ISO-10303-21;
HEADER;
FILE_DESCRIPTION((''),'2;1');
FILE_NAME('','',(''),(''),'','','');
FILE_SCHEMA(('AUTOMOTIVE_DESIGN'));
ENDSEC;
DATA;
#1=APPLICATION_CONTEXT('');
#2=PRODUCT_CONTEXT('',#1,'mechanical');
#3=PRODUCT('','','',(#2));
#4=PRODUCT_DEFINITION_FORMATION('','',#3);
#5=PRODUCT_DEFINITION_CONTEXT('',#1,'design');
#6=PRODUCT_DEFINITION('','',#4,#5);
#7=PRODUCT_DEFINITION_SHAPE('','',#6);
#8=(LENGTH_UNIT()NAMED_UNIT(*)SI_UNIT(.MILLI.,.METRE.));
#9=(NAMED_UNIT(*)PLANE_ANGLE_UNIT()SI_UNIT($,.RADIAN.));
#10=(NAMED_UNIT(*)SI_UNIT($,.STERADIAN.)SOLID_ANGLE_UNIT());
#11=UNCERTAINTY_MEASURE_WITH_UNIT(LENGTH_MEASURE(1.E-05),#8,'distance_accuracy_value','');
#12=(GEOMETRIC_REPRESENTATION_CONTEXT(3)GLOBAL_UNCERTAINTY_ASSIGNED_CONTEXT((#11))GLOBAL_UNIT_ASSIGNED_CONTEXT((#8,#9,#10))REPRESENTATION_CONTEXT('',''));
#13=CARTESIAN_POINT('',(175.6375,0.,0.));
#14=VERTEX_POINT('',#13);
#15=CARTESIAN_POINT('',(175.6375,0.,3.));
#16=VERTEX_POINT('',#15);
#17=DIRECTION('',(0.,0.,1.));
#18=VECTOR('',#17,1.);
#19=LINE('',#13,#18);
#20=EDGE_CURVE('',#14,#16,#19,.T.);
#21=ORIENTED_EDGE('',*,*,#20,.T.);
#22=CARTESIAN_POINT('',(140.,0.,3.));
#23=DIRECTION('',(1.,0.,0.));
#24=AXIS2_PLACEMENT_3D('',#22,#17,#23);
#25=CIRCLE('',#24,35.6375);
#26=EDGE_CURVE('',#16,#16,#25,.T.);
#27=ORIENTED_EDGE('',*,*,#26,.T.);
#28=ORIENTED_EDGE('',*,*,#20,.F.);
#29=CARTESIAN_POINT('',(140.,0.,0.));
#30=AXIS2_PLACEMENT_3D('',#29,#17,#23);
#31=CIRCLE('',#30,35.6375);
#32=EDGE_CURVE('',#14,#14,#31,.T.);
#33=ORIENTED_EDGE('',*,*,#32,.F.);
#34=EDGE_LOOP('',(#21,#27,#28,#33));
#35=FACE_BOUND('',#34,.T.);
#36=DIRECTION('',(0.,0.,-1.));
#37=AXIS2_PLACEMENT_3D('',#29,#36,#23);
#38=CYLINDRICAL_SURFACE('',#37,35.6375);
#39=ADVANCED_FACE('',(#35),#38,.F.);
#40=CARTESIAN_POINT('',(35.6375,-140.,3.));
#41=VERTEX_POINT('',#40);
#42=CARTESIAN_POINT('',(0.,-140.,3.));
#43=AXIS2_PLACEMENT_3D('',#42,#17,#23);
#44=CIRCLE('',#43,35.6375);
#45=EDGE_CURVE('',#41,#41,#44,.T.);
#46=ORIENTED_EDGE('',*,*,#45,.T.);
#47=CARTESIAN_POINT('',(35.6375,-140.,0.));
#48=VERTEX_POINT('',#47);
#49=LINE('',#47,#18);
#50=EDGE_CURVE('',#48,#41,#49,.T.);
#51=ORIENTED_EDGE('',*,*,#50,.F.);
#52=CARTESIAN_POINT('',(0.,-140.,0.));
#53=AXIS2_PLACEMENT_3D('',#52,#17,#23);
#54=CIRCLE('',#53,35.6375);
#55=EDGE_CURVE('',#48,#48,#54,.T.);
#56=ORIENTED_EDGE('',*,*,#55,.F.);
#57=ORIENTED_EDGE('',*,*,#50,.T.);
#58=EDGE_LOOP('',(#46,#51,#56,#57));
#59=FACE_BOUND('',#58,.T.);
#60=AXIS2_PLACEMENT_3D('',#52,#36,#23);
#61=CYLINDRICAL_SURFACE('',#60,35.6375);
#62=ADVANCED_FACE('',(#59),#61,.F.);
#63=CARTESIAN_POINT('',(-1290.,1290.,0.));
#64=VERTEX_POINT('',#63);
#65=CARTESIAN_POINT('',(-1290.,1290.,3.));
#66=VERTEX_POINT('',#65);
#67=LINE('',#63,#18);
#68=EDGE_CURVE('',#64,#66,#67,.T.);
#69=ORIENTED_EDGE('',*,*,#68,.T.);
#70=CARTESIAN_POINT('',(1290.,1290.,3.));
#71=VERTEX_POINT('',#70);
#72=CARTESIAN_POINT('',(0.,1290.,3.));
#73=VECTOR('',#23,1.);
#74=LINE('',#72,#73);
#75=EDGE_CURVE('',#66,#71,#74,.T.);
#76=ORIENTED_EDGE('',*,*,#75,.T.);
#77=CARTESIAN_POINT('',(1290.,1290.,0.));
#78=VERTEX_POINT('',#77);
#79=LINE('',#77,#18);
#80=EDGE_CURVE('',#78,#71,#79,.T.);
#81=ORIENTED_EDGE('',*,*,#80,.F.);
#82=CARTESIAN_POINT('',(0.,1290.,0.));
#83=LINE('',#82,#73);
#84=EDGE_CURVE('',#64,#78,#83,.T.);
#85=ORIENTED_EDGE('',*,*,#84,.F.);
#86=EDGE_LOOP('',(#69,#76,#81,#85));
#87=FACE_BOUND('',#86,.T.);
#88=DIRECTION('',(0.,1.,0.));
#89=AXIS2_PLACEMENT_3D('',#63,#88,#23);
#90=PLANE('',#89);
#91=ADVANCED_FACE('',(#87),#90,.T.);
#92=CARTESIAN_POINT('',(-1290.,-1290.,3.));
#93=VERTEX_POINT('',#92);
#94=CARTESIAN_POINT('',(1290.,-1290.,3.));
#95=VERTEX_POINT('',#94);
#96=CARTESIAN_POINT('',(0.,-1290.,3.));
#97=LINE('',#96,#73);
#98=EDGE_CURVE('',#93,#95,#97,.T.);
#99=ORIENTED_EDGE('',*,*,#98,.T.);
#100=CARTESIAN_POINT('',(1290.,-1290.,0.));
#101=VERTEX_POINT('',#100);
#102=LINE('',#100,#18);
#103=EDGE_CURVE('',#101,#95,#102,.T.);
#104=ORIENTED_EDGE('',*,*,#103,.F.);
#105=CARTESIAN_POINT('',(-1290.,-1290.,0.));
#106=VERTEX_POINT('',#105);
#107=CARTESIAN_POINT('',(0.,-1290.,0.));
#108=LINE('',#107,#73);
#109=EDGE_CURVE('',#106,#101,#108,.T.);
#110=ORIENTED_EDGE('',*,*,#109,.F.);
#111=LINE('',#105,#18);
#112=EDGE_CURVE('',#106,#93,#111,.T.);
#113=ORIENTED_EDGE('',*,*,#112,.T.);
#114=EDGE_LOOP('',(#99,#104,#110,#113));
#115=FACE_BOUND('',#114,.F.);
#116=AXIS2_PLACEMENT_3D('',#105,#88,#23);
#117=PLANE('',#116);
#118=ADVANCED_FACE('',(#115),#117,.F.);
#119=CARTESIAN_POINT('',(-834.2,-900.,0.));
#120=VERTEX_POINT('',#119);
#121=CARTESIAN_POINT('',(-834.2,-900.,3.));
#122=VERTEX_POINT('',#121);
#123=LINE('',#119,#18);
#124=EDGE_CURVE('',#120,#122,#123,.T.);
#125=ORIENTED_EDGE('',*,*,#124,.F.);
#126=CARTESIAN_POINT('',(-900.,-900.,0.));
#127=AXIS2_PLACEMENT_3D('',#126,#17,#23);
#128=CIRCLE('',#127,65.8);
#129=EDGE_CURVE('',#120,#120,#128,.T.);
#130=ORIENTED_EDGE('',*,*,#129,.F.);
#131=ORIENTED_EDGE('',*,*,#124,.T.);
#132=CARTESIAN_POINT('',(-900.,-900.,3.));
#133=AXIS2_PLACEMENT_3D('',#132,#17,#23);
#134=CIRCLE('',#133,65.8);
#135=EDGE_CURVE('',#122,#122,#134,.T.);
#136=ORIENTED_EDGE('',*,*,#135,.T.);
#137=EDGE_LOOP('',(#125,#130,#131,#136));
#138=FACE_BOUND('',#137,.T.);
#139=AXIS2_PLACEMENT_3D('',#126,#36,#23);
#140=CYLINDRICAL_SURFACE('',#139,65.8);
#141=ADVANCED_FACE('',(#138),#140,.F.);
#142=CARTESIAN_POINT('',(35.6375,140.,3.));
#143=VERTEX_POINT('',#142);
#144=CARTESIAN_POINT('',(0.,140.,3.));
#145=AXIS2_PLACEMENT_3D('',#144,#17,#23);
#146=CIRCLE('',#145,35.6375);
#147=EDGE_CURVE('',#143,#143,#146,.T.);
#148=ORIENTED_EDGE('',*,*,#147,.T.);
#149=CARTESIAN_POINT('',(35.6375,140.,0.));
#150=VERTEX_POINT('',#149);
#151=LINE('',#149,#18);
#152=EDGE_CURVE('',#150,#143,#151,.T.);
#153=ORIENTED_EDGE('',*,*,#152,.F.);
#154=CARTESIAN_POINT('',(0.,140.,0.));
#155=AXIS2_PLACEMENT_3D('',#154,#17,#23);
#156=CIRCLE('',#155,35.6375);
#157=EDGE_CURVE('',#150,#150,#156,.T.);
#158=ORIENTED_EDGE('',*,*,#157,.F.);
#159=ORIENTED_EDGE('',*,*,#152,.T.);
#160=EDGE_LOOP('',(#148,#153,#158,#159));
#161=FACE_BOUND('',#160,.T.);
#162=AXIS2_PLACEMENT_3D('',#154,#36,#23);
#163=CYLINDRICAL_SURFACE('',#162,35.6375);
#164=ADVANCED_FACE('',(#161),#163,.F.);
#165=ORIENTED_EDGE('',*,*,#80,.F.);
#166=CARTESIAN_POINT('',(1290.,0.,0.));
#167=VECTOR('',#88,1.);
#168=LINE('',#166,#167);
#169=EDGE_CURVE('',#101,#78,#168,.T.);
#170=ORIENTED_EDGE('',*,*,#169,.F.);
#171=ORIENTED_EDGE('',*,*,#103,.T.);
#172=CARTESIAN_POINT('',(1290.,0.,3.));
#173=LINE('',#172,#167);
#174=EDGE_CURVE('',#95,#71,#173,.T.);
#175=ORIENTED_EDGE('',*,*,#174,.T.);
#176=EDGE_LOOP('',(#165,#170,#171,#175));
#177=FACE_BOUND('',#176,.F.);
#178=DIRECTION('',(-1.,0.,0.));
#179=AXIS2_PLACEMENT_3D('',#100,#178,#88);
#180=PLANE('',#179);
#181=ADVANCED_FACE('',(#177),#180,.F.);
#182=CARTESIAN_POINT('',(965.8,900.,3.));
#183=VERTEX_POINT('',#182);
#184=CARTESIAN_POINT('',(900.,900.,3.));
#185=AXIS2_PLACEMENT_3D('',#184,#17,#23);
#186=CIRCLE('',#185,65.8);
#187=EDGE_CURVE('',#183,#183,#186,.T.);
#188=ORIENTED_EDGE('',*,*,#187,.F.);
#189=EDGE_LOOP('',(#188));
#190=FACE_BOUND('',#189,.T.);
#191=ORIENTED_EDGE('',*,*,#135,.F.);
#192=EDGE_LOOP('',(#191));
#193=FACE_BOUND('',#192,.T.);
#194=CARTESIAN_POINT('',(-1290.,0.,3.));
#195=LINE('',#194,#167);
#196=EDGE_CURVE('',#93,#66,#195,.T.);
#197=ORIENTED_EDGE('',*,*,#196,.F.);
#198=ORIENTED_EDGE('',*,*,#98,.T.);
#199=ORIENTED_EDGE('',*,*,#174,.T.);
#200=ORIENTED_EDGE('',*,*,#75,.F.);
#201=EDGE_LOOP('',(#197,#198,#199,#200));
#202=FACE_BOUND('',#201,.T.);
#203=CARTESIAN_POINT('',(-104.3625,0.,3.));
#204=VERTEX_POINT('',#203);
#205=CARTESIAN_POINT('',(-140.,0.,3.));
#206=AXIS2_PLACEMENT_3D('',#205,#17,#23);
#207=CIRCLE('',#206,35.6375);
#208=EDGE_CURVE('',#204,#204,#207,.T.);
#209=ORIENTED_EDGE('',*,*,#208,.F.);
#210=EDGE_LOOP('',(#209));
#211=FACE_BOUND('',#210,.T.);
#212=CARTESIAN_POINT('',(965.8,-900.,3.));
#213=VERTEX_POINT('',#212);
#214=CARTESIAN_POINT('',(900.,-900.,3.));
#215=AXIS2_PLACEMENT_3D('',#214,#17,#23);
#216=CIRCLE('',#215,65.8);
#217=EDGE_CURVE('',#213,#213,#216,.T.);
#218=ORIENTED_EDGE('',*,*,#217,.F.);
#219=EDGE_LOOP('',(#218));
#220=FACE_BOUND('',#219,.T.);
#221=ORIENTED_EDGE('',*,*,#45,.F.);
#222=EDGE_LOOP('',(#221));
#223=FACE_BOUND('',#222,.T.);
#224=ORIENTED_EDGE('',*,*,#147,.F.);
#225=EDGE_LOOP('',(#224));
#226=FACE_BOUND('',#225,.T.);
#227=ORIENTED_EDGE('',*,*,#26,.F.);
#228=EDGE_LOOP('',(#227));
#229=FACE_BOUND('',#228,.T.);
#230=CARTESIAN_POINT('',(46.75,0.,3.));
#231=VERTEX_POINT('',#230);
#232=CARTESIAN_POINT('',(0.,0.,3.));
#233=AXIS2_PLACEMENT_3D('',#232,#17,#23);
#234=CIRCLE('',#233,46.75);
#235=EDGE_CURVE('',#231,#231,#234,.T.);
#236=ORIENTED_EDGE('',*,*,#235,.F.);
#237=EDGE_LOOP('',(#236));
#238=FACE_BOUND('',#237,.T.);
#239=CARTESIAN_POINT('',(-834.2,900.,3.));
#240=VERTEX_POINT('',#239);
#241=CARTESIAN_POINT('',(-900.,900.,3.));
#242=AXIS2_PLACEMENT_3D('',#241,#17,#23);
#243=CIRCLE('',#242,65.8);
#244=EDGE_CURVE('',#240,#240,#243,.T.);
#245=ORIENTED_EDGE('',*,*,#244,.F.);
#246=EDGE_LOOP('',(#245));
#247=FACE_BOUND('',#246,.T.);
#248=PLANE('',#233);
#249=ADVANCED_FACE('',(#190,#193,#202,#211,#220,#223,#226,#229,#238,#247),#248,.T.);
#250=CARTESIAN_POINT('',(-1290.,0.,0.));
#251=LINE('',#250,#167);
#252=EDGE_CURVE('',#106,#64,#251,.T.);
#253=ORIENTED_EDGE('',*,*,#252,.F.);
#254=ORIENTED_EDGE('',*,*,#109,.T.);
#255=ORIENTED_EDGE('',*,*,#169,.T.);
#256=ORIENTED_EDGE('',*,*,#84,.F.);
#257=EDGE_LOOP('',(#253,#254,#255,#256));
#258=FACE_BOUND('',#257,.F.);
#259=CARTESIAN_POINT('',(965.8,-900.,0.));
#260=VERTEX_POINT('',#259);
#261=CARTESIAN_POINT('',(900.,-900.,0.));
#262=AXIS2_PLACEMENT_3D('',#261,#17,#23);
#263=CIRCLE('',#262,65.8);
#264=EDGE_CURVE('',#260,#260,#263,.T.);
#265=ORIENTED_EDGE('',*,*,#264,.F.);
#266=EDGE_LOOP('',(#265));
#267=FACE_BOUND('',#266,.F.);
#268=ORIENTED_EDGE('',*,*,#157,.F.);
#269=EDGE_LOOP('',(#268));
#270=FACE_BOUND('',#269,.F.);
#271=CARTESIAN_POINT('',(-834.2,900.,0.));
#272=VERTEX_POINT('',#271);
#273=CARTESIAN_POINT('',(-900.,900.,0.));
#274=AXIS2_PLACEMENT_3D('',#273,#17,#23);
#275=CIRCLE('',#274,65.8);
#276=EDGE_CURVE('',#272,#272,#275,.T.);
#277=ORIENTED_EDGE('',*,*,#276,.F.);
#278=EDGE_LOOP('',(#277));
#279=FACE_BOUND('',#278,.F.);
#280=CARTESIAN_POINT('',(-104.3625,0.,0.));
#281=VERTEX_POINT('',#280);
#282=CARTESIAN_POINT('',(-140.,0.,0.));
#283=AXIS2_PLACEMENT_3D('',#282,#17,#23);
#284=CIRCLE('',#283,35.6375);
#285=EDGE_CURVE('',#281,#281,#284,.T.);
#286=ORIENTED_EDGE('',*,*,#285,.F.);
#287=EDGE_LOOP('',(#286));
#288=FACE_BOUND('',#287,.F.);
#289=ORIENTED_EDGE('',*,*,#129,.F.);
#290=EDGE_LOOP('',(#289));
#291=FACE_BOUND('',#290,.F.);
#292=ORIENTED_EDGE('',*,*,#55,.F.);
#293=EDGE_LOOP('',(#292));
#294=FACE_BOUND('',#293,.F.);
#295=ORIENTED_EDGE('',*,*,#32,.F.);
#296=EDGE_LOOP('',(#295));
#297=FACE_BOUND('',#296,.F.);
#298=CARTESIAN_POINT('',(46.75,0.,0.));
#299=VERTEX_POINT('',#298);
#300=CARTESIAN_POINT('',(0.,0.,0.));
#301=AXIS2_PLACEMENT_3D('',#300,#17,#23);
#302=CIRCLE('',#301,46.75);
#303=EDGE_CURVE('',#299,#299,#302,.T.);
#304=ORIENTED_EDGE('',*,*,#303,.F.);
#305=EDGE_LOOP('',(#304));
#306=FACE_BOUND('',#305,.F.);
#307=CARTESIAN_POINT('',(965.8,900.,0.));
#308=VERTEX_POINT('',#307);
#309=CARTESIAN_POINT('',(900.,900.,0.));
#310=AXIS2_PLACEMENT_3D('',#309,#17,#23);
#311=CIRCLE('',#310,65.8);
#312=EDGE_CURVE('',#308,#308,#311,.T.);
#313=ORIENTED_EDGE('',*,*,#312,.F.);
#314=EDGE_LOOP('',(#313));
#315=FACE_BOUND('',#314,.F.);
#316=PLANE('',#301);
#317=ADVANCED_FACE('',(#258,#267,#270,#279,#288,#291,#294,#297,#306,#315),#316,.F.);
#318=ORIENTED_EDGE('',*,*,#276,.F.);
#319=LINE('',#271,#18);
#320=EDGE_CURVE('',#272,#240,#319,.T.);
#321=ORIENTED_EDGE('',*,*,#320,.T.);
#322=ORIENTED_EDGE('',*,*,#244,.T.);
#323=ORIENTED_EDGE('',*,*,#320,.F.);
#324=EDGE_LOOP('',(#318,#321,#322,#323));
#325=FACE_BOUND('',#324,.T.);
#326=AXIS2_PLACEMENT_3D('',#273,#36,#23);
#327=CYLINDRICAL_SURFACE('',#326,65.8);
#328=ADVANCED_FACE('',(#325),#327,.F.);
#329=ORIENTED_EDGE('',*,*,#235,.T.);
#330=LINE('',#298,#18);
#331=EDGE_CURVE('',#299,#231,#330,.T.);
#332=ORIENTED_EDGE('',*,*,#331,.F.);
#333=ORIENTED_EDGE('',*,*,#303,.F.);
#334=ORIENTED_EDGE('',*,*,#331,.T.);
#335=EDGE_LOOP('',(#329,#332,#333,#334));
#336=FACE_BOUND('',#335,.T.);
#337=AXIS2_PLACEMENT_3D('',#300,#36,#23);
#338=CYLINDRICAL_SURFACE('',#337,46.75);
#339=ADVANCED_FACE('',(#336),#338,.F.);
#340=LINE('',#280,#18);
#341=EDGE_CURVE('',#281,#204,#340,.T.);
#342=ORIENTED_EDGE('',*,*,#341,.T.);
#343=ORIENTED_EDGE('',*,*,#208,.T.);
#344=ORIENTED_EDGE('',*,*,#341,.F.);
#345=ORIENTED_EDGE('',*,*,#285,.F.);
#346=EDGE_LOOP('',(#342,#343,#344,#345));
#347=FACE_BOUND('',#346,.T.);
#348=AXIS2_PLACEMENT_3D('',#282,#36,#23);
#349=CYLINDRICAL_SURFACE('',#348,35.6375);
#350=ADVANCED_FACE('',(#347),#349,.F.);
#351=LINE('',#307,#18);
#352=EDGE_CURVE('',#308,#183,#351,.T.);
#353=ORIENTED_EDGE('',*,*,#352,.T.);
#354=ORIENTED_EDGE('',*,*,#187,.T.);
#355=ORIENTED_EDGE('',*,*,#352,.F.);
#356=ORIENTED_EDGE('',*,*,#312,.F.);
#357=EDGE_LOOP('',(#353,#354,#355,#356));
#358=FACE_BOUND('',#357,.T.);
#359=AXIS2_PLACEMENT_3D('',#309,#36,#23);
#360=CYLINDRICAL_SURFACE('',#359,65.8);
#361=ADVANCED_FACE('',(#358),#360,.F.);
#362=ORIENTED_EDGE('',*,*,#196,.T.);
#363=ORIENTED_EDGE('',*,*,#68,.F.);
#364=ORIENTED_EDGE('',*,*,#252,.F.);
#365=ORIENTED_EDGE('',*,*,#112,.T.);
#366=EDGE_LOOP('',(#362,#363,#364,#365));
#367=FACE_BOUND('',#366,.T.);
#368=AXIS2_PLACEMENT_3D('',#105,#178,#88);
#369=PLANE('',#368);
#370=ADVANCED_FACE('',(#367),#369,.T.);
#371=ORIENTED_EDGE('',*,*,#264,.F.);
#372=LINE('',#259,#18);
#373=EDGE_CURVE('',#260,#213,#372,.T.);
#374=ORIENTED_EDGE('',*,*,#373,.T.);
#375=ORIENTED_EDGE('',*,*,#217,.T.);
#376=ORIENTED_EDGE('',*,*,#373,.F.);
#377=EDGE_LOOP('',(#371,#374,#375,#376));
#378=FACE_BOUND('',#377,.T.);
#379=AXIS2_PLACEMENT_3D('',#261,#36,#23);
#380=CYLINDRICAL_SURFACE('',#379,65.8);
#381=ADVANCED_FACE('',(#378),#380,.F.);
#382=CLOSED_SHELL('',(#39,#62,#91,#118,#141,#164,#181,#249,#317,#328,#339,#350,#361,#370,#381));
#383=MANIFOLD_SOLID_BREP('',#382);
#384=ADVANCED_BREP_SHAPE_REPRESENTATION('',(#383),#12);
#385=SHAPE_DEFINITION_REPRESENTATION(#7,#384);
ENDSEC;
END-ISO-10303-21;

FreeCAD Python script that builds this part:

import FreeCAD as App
import Part
import Sketcher

V = App.Vector
Q = App.Units.Quantity

doc = App.newDocument("Part")
body = doc.addObject("PartDesign::Body", "Body")

# Sketch on XY plane
sketch1 = body.newObject("Sketcher::SketchObject", "Sketch")
sketch1.AttachmentSupport = (doc.getObject("XY_Plane"), [""])
sketch1.MapMode = "FlatFace"
sketch1.addGeometry([
    Part.LineSegment(V(-1290, 1290, 0), V(-1290, -1290, 0)),  # 0
    Part.LineSegment(V(-1290, -1290, 0), V(1290, -1290, 0)),  # 1
    Part.LineSegment(V(1290, -1290, 0), V(1290, 1290, 0)),  # 2
    Part.LineSegment(V(1290, 1290, 0), V(-1290, 1290, 0)),  # 3
    Part.Circle(V(-900, -900, 0), V(0, 0, 1), 66),  # 4
    Part.Circle(V(900, -900, 0), V(0, 0, 1), 66),  # 5
    Part.Circle(V(0, -140, 0), V(0, 0, 1), 36),  # 6
    Part.Circle(V(-140, 0, 0), V(0, 0, 1), 36),  # 7
    Part.Circle(V(-900, 900, 0), V(0, 0, 1), 66),  # 8
    Part.Circle(V(0, 0, 0), V(0, 0, 1), 47),  # 9
    Part.Circle(V(140, 0, 0), V(0, 0, 1), 36),  # 10
    Part.Circle(V(0, 140, 0), V(0, 0, 1), 36),  # 11
    Part.Circle(V(900, 900, 0), V(0, 0, 1), 66),  # 12
], False)
sketch1.addConstraint([
    Sketcher.Constraint("Coincident", 0, 2, 1, 1),
    Sketcher.Constraint("Coincident", 1, 2, 2, 1),
    Sketcher.Constraint("Coincident", 2, 2, 3, 1),
    Sketcher.Constraint("Coincident", 3, 2, 0, 1),
    Sketcher.Constraint("Vertical", 0),
    Sketcher.Constraint("Horizontal", 1),
    Sketcher.Constraint("Vertical", 2),
    Sketcher.Constraint("Horizontal", 3),
    Sketcher.Constraint("Coincident", 9, 3, -1, 1),
    Sketcher.Constraint("Equal", 4, 5),
    Sketcher.Constraint("Equal", 6, 7),
    Sketcher.Constraint("Equal", 5, 8),
    Sketcher.Constraint("Equal", 7, 10),
    Sketcher.Constraint("Equal", 10, 11),
    Sketcher.Constraint("Equal", 8, 12),
    Sketcher.Constraint("Symmetric", 5, 3, 8, 3, -1, 1),
    Sketcher.Constraint("Symmetric", 7, 3, 10, 3, -1, 1),
    Sketcher.Constraint("Symmetric", 6, 3, 11, 3, -1, 1),
    Sketcher.Constraint("Symmetric", 4, 3, 12, 3, -1, 1),
    Sketcher.Constraint("Symmetric", 0, 2, 2, 2, -1, 1),
    Sketcher.Constraint("Symmetric", 4, 3, 5, 3, -2),
    Sketcher.Constraint("PointOnObject", 6, 3, -2),
    Sketcher.Constraint("PointOnObject", 7, 3, -1),
    Sketcher.Constraint("Equal", 3, 0),
    Sketcher.Constraint("Diameter", 4, Q("131.6 mm")),
    Sketcher.Constraint("Diameter", 9, Q("93.5 mm")),
    Sketcher.Constraint("DistanceX", 1, 1, 1, 2, Q("2580 mm")),
    Sketcher.Constraint("Diameter", 6, Q("71.275 mm")),
    Sketcher.Constraint("DistanceX", 4, 3, -1, 1, Q("900 mm")),
    Sketcher.Constraint("DistanceY", 4, 3, -1, 1, Q("900 mm")),
    Sketcher.Constraint("DistanceY", 6, 3, -1, 1, Q("140 mm")),
    Sketcher.Constraint("DistanceX", 7, 3, -1, 1, Q("140 mm")),
])
pad1 = body.newObject("PartDesign::Pad", "Pad")
pad1.Profile = sketch1
pad1.Length = 3

doc.recompute()
